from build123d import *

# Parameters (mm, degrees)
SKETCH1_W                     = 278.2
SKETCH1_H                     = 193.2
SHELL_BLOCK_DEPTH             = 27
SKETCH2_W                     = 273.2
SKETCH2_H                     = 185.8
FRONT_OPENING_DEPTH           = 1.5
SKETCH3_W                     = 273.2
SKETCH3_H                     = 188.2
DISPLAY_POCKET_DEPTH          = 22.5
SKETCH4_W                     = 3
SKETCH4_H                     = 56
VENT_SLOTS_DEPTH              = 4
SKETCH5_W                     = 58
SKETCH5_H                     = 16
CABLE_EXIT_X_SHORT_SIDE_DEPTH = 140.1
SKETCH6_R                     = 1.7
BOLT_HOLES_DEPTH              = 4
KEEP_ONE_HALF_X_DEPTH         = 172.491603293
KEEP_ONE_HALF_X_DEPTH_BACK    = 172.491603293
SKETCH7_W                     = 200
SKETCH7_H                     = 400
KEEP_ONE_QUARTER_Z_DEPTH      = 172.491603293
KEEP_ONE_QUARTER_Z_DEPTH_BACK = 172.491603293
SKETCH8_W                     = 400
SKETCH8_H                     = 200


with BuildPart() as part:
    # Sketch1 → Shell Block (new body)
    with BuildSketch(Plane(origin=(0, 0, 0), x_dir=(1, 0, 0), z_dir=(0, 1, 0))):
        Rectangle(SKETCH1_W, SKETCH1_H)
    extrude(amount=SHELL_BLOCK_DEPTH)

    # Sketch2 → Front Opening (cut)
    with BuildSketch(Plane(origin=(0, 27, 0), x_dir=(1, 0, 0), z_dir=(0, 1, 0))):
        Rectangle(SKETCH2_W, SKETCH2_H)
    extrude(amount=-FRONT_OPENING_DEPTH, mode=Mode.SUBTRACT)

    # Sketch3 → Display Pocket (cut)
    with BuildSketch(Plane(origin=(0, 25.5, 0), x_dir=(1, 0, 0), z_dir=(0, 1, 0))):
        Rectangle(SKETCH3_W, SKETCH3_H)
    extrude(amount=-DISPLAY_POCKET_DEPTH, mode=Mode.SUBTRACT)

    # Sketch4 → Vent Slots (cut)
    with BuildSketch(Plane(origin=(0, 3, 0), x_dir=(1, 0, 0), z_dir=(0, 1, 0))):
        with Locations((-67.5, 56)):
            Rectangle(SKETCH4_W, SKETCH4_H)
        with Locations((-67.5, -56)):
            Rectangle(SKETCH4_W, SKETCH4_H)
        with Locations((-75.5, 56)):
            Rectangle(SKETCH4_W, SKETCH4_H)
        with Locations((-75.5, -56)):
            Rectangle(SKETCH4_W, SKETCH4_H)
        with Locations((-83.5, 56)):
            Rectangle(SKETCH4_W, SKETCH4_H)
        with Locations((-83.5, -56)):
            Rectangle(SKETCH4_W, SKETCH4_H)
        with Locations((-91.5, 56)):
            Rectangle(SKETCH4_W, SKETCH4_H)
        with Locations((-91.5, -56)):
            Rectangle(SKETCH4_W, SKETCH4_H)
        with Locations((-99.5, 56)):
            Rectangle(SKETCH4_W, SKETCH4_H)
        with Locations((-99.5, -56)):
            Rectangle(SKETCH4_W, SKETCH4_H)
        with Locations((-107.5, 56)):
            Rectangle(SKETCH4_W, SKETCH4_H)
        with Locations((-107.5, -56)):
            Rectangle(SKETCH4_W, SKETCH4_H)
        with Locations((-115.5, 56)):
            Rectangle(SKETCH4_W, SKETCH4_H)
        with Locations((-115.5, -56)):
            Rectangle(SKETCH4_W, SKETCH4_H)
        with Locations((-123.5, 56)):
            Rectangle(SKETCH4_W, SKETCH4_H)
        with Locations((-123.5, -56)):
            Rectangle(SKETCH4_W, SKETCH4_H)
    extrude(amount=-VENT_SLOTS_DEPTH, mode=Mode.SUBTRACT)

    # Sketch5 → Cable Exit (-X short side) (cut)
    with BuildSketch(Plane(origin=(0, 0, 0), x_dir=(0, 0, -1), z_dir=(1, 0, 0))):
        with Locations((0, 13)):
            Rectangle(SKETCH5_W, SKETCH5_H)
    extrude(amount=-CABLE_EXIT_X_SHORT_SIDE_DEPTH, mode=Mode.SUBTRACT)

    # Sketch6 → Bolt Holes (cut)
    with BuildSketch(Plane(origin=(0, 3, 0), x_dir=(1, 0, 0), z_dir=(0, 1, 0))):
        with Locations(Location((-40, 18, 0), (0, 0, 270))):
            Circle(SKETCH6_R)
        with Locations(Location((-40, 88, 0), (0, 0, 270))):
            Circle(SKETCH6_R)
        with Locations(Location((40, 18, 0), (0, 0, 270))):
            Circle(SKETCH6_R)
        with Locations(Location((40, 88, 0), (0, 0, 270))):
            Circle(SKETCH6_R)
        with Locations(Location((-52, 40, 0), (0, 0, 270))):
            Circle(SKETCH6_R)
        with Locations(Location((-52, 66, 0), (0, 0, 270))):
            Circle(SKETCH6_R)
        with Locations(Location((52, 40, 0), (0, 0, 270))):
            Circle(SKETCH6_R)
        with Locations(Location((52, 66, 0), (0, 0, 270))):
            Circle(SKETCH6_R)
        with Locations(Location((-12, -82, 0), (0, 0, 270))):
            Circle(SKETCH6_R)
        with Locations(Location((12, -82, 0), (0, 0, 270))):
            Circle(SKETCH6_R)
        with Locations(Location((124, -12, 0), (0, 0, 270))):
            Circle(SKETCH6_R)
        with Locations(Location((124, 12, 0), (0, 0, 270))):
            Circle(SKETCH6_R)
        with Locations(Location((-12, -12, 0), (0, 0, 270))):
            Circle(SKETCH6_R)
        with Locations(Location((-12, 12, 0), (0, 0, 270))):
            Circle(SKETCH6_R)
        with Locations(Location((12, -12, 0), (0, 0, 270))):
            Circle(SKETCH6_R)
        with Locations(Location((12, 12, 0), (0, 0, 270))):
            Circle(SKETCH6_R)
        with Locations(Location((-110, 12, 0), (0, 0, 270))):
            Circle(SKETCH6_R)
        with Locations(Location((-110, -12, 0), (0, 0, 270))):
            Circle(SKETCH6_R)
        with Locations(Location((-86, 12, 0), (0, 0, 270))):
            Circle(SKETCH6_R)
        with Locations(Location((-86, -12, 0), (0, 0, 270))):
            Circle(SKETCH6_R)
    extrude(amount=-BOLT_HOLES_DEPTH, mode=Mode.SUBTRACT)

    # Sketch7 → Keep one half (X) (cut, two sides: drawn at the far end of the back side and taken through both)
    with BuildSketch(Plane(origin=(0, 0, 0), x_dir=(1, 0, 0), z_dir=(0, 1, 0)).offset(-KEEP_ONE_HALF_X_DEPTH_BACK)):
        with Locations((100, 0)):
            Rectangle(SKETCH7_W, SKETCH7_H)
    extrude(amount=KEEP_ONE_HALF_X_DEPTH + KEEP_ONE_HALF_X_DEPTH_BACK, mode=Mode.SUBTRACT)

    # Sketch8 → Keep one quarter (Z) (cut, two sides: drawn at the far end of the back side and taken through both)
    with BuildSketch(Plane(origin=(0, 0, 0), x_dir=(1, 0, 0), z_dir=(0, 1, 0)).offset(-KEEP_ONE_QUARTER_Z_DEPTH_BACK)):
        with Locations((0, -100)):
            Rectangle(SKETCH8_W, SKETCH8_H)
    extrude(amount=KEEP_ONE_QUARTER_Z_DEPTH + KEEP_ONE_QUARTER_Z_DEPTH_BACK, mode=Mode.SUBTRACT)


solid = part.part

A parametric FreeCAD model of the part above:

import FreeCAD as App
import Part
import Sketcher
from FreeCAD import Vector
Q = App.Units.Quantity

doc = App.newDocument("Part")
body = doc.addObject("PartDesign::Body", "Body")

sketch1 = body.newObject("Sketcher::SketchObject", "Sketch")
sketch1.AttachmentSupport = (doc.getObject("XZ_Plane"), [""])
sketch1.MapMode = "FlatFace"
sketch1.addGeometry([
    Part.LineSegment(Vector(-139, -97, 0), Vector(-139, 97, 0)),
    Part.LineSegment(Vector(-139, 97, 0), Vector(139, 97, 0)),
    Part.LineSegment(Vector(139, 97, 0), Vector(139, -97, 0)),
    Part.LineSegment(Vector(139, -97, 0), Vector(-139, -97, 0)),
], False)
sketch1.addConstraint([
    Sketcher.Constraint("Coincident", 0, 2, 1, 1),
    Sketcher.Constraint("Coincident", 1, 2, 2, 1),
    Sketcher.Constraint("Coincident", 2, 2, 3, 1),
    Sketcher.Constraint("Coincident", 3, 2, 0, 1),
    Sketcher.Constraint("Vertical", 0),
    Sketcher.Constraint("Horizontal", 1),
    Sketcher.Constraint("Vertical", 2),
    Sketcher.Constraint("Horizontal", 3),
    Sketcher.Constraint("Symmetric", 0, 2, 2, 2, -1, 1),
    Sketcher.Constraint("DistanceX", 1, 1, 1, 2, Q("278.2 mm")),
    Sketcher.Constraint("DistanceY", 0, 1, 0, 2, Q("193.2 mm")),
])
pad1 = body.newObject("PartDesign::Pad", "Pad")
pad1.Profile = sketch1
pad1.Length = 27
pad1.Reversed = True

sketch2 = body.newObject("Sketcher::SketchObject", "Sketch001")
sketch2.AttachmentSupport = (doc.getObject("XZ_Plane"), [""])
sketch2.MapMode = "FlatFace"
sketch2.AttachmentOffset = App.Placement(Vector(0, 0, -27), App.Rotation())
sketch2.addGeometry([
    Part.LineSegment(Vector(-137, -93, 0), Vector(-137, 93, 0)),
    Part.LineSegment(Vector(-137, 93, 0), Vector(137, 93, 0)),
    Part.LineSegment(Vector(137, 93, 0), Vector(137, -93, 0)),
    Part.LineSegment(Vector(137, -93, 0), Vector(-137, -93, 0)),
], False)
sketch2.addConstraint([
    Sketcher.Constraint("Coincident", 0, 2, 1, 1),
    Sketcher.Constraint("Coincident", 1, 2, 2, 1),
    Sketcher.Constraint("Coincident", 2, 2, 3, 1),
    Sketcher.Constraint("Coincident", 3, 2, 0, 1),
    Sketcher.Constraint("Vertical", 0),
    Sketcher.Constraint("Horizontal", 1),
    Sketcher.Constraint("Vertical", 2),
    Sketcher.Constraint("Horizontal", 3),
    Sketcher.Constraint("Symmetric", 0, 2, 2, 2, -1, 1),
    Sketcher.Constraint("DistanceX", 1, 1, 1, 2, Q("273.2 mm")),
    Sketcher.Constraint("DistanceY", 0, 1, 0, 2, Q("185.8 mm")),
])
pocket1 = body.newObject("PartDesign::Pocket", "Pocket")
pocket1.Profile = sketch2
pocket1.Length = 1.5
pocket1.Reversed = True

sketch3 = body.newObject("Sketcher::SketchObject", "Sketch002")
sketch3.AttachmentSupport = (doc.getObject("XZ_Plane"), [""])
sketch3.MapMode = "FlatFace"
sketch3.AttachmentOffset = App.Placement(Vector(0, 0, -25.5), App.Rotation())
sketch3.addGeometry([
    Part.LineSegment(Vector(-137, -94, 0), Vector(-137, 94, 0)),
    Part.LineSegment(Vector(-137, 94, 0), Vector(137, 94, 0)),
    Part.LineSegment(Vector(137, 94, 0), Vector(137, -94, 0)),
    Part.LineSegment(Vector(137, -94, 0), Vector(-137, -94, 0)),
], False)
sketch3.addConstraint([
    Sketcher.Constraint("Coincident", 0, 2, 1, 1),
    Sketcher.Constraint("Coincident", 1, 2, 2, 1),
    Sketcher.Constraint("Coincident", 2, 2, 3, 1),
    Sketcher.Constraint("Coincident", 3, 2, 0, 1),
    Sketcher.Constraint("Vertical", 0),
    Sketcher.Constraint("Horizontal", 1),
    Sketcher.Constraint("Vertical", 2),
    Sketcher.Constraint("Horizontal", 3),
    Sketcher.Constraint("Symmetric", 0, 2, 2, 2, -1, 1),
    Sketcher.Constraint("DistanceX", 1, 1, 1, 2, Q("273.2 mm")),
    Sketcher.Constraint("DistanceY", 0, 1, 0, 2, Q("188.2 mm")),
])
pocket2 = body.newObject("PartDesign::Pocket", "Pocket001")
pocket2.Profile = sketch3
pocket2.Length = 22.5
pocket2.Reversed = True

sketch4 = body.newObject("Sketcher::SketchObject", "Sketch003")
sketch4.AttachmentSupport = (doc.getObject("XZ_Plane"), [""])
sketch4.MapMode = "FlatFace"
sketch4.AttachmentOffset = App.Placement(Vector(0, 0, -3), App.Rotation())
sketch4.addGeometry([
    Part.LineSegment(Vector(-69, -84, 0), Vector(-69, -28, 0)),
    Part.LineSegment(Vector(-69, -28, 0), Vector(-66, -28, 0)),
    Part.LineSegment(Vector(-66, -28, 0), Vector(-66, -84, 0)),
    Part.LineSegment(Vector(-66, -84, 0), Vector(-69, -84, 0)),
    Part.LineSegment(Vector(-69, 28, 0), Vector(-69, 84, 0)),
    Part.LineSegment(Vector(-69, 84, 0), Vector(-66, 84, 0)),
    Part.LineSegment(Vector(-66, 84, 0), Vector(-66, 28, 0)),
    Part.LineSegment(Vector(-66, 28, 0), Vector(-69, 28, 0)),
    Part.LineSegment(Vector(-77, -84, 0), Vector(-77, -28, 0)),
    Part.LineSegment(Vector(-77, -28, 0), Vector(-74, -28, 0)),
    Part.LineSegment(Vector(-74, -28, 0), Vector(-74, -84, 0)),
    Part.LineSegment(Vector(-74, -84, 0), Vector(-77, -84, 0)),
    Part.LineSegment(Vector(-77, 28, 0), Vector(-77, 84, 0)),
    Part.LineSegment(Vector(-77, 84, 0), Vector(-74, 84, 0)),
    Part.LineSegment(Vector(-74, 84, 0), Vector(-74, 28, 0)),
    Part.LineSegment(Vector(-74, 28, 0), Vector(-77, 28, 0)),
    Part.LineSegment(Vector(-85, -84, 0), Vector(-85, -28, 0)),
    Part.LineSegment(Vector(-85, -28, 0), Vector(-82, -28, 0)),
    Part.LineSegment(Vector(-82, -28, 0), Vector(-82, -84, 0)),
    Part.LineSegment(Vector(-82, -84, 0), Vector(-85, -84, 0)),
    Part.LineSegment(Vector(-85, 28, 0), Vector(-85, 84, 0)),
    Part.LineSegment(Vector(-85, 84, 0), Vector(-82, 84, 0)),
    Part.LineSegment(Vector(-82, 84, 0), Vector(-82, 28, 0)),
    Part.LineSegment(Vector(-82, 28, 0), Vector(-85, 28, 0)),
    Part.LineSegment(Vector(-93, -84, 0), Vector(-93, -28, 0)),
    Part.LineSegment(Vector(-93, -28, 0), Vector(-90, -28, 0)),
    Part.LineSegment(Vector(-90, -28, 0), Vector(-90, -84, 0)),
    Part.LineSegment(Vector(-90, -84, 0), Vector(-93, -84, 0)),
    Part.LineSegment(Vector(-93, 28, 0), Vector(-93, 84, 0)),
    Part.LineSegment(Vector(-93, 84, 0), Vector(-90, 84, 0)),
    Part.LineSegment(Vector(-90, 84, 0), Vector(-90, 28, 0)),
    Part.LineSegment(Vector(-90, 28, 0), Vector(-93, 28, 0)),
    Part.LineSegment(Vector(-101, -84, 0), Vector(-101, -28, 0)),
    Part.LineSegment(Vector(-101, -28, 0), Vector(-98, -28, 0)),
    Part.LineSegment(Vector(-98, -28, 0), Vector(-98, -84, 0)),
    Part.LineSegment(Vector(-98, -84, 0), Vector(-101, -84, 0)),
    Part.LineSegment(Vector(-101, 28, 0), Vector(-101, 84, 0)),
    Part.LineSegment(Vector(-101, 84, 0), Vector(-98, 84, 0)),
    Part.LineSegment(Vector(-98, 84, 0), Vector(-98, 28, 0)),
    Part.LineSegment(Vector(-98, 28, 0), Vector(-101, 28, 0)),
    Part.LineSegment(Vector(-109, -84, 0), Vector(-109, -28, 0)),
    Part.LineSegment(Vector(-109, -28, 0), Vector(-106, -28, 0)),
    Part.LineSegment(Vector(-106, -28, 0), Vector(-106, -84, 0)),
    Part.LineSegment(Vector(-106, -84, 0), Vector(-109, -84, 0)),
    Part.LineSegment(Vector(-109, 28, 0), Vector(-109, 84, 0)),
    Part.LineSegment(Vector(-109, 84, 0), Vector(-106, 84, 0)),
    Part.LineSegment(Vector(-106, 84, 0), Vector(-106, 28, 0)),
    Part.LineSegment(Vector(-106, 28, 0), Vector(-109, 28, 0)),
    Part.LineSegment(Vector(-117, -84, 0), Vector(-117, -28, 0)),
    Part.LineSegment(Vector(-117, -28, 0), Vector(-114, -28, 0)),
    Part.LineSegment(Vector(-114, -28, 0), Vector(-114, -84, 0)),
    Part.LineSegment(Vector(-114, -84, 0), Vector(-117, -84, 0)),
    Part.LineSegment(Vector(-117, 28, 0), Vector(-117, 84, 0)),
    Part.LineSegment(Vector(-117, 84, 0), Vector(-114, 84, 0)),
    Part.LineSegment(Vector(-114, 84, 0), Vector(-114, 28, 0)),
    Part.LineSegment(Vector(-114, 28, 0), Vector(-117, 28, 0)),
    Part.LineSegment(Vector(-125, -84, 0), Vector(-125, -28, 0)),
    Part.LineSegment(Vector(-125, -28, 0), Vector(-122, -28, 0)),
    Part.LineSegment(Vector(-122, -28, 0), Vector(-122, -84, 0)),
    Part.LineSegment(Vector(-122, -84, 0), Vector(-125, -84, 0)),
    Part.LineSegment(Vector(-125, 28, 0), Vector(-125, 84, 0)),
    Part.LineSegment(Vector(-125, 84, 0), Vector(-122, 84, 0)),
    Part.LineSegment(Vector(-122, 84, 0), Vector(-122, 28, 0)),
    Part.LineSegment(Vector(-122, 28, 0), Vector(-125, 28, 0)),
], False)
sketch4.addConstraint([
    Sketcher.Constraint("Coincident", 0, 2, 1, 1),
    Sketcher.Constraint("Coincident", 1, 2, 2, 1),
    Sketcher.Constraint("Coincident", 2, 2, 3, 1),
    Sketcher.Constraint("Coincident", 3, 2, 0, 1),
    Sketcher.Constraint("Coincident", 4, 2, 5, 1),
    Sketcher.Constraint("Coincident", 5, 2, 6, 1),
    Sketcher.Constraint("Coincident", 6, 2, 7, 1),
    Sketcher.Constraint("Coincident", 7, 2, 4, 1),
    Sketcher.Constraint("Coincident", 8, 2, 9, 1),
    Sketcher.Constraint("Coincident", 9, 2, 10, 1),
    Sketcher.Constraint("Coincident", 10, 2, 11, 1),
    Sketcher.Constraint("Coincident", 11, 2, 8, 1),
    Sketcher.Constraint("Coincident", 12, 2, 13, 1),
    Sketcher.Constraint("Coincident", 13, 2, 14, 1),
    Sketcher.Constraint("Coincident", 14, 2, 15, 1),
    Sketcher.Constraint("Coincident", 15, 2, 12, 1),
    Sketcher.Constraint("Coincident", 16, 2, 17, 1),
    Sketcher.Constraint("Coincident", 17, 2, 18, 1),
    Sketcher.Constraint("Coincident", 18, 2, 19, 1),
    Sketcher.Constraint("Coincident", 19, 2, 16, 1),
    Sketcher.Constraint("Coincident", 20, 2, 21, 1),
    Sketcher.Constraint("Coincident", 21, 2, 22, 1),
    Sketcher.Constraint("Coincident", 22, 2, 23, 1),
    Sketcher.Constraint("Coincident", 23, 2, 20, 1),
    Sketcher.Constraint("Coincident", 24, 2, 25, 1),
    Sketcher.Constraint("Coincident", 25, 2, 26, 1),
    Sketcher.Constraint("Coincident", 26, 2, 27, 1),
    Sketcher.Constraint("Coincident", 27, 2, 24, 1),
    Sketcher.Constraint("Coincident", 28, 2, 29, 1),
    Sketcher.Constraint("Coincident", 29, 2, 30, 1),
    Sketcher.Constraint("Coincident", 30, 2, 31, 1),
    Sketcher.Constraint("Coincident", 31, 2, 28, 1),
    Sketcher.Constraint("Coincident", 32, 2, 33, 1),
    Sketcher.Constraint("Coincident", 33, 2, 34, 1),
    Sketcher.Constraint("Coincident", 34, 2, 35, 1),
    Sketcher.Constraint("Coincident", 35, 2, 32, 1),
    Sketcher.Constraint("Coincident", 36, 2, 37, 1),
    Sketcher.Constraint("Coincident", 37, 2, 38, 1),
    Sketcher.Constraint("Coincident", 38, 2, 39, 1),
    Sketcher.Constraint("Coincident", 39, 2, 36, 1),
    Sketcher.Constraint("Coincident", 40, 2, 41, 1),
    Sketcher.Constraint("Coincident", 41, 2, 42, 1),
    Sketcher.Constraint("Coincident", 42, 2, 43, 1),
    Sketcher.Constraint("Coincident", 43, 2, 40, 1),
    Sketcher.Constraint("Coincident", 44, 2, 45, 1),
    Sketcher.Constraint("Coincident", 45, 2, 46, 1),
    Sketcher.Constraint("Coincident", 46, 2, 47, 1),
    Sketcher.Constraint("Coincident", 47, 2, 44, 1),
    Sketcher.Constraint("Coincident", 48, 2, 49, 1),
    Sketcher.Constraint("Coincident", 49, 2, 50, 1),
    Sketcher.Constraint("Coincident", 50, 2, 51, 1),
    Sketcher.Constraint("Coincident", 51, 2, 48, 1),
    Sketcher.Constraint("Coincident", 52, 2, 53, 1),
    Sketcher.Constraint("Coincident", 53, 2, 54, 1),
    Sketcher.Constraint("Coincident", 54, 2, 55, 1),
    Sketcher.Constraint("Coincident", 55, 2, 52, 1),
    Sketcher.Constraint("Coincident", 56, 2, 57, 1),
    Sketcher.Constraint("Coincident", 57, 2, 58, 1),
    Sketcher.Constraint("Coincident", 58, 2, 59, 1),
    Sketcher.Constraint("Coincident", 59, 2, 56, 1),
    Sketcher.Constraint("Coincident", 60, 2, 61, 1),
    Sketcher.Constraint("Coincident", 61, 2, 62, 1),
    Sketcher.Constraint("Coincident", 62, 2, 63, 1),
    Sketcher.Constraint("Coincident", 63, 2, 60, 1),
    Sketcher.Constraint("Vertical", 0),
    Sketcher.Constraint("Horizontal", 1),
    Sketcher.Constraint("Vertical", 2),
    Sketcher.Constraint("Horizontal", 3),
    Sketcher.Constraint("Vertical", 4),
    Sketcher.Constraint("Horizontal", 5),
    Sketcher.Constraint("Vertical", 6),
    Sketcher.Constraint("Horizontal", 7),
    Sketcher.Constraint("Vertical", 8),
    Sketcher.Constraint("Horizontal", 9),
    Sketcher.Constraint("Vertical", 10),
    Sketcher.Constraint("Horizontal", 11),
    Sketcher.Constraint("Vertical", 12),
    Sketcher.Constraint("Horizontal", 13),
    Sketcher.Constraint("Vertical", 14),
    Sketcher.Constraint("Horizontal", 15),
    Sketcher.Constraint("Vertical", 16),
    Sketcher.Constraint("Horizontal", 17),
    Sketcher.Constraint("Vertical", 18),
    Sketcher.Constraint("Horizontal", 19),
    Sketcher.Constraint("Vertical", 20),
    Sketcher.Constraint("Horizontal", 21),
    Sketcher.Constraint("Vertical", 22),
    Sketcher.Constraint("Horizontal", 23),
    Sketcher.Constraint("Vertical", 24),
    Sketcher.Constraint("Horizontal", 25),
    Sketcher.Constraint("Vertical", 26),
    Sketcher.Constraint("Horizontal", 27),
    Sketcher.Constraint("Vertical", 28),
    Sketcher.Constraint("Horizontal", 29),
    Sketcher.Constraint("Vertical", 30),
    Sketcher.Constraint("Horizontal", 31),
    Sketcher.Constraint("Vertical", 32),
    Sketcher.Constraint("Horizontal", 33),
    Sketcher.Constraint("Vertical", 34),
    Sketcher.Constraint("Horizontal", 35),
    Sketcher.Constraint("Vertical", 36),
    Sketcher.Constraint("Horizontal", 37),
    Sketcher.Constraint("Vertical", 38),
    Sketcher.Constraint("Horizontal", 39),
    Sketcher.Constraint("Vertical", 40),
    Sketcher.Constraint("Horizontal", 41),
    Sketcher.Constraint("Vertical", 42),
    Sketcher.Constraint("Horizontal", 43),
    Sketcher.Constraint("Vertical", 44),
    Sketcher.Constraint("Horizontal", 45),
    Sketcher.Constraint("Vertical", 46),
    Sketcher.Constraint("Horizontal", 47),
    Sketcher.Constraint("Vertical", 48),
    Sketcher.Constraint("Horizontal", 49),
    Sketcher.Constraint("Vertical", 50),
    Sketcher.Constraint("Horizontal", 51),
    Sketcher.Constraint("Vertical", 52),
    Sketcher.Constraint("Horizontal", 53),
    Sketcher.Constraint("Vertical", 54),
    Sketcher.Constraint("Horizontal", 55),
    Sketcher.Constraint("Vertical", 56),
    Sketcher.Constraint("Horizontal", 57),
    Sketcher.Constraint("Vertical", 58),
    Sketcher.Constraint("Horizontal", 59),
    Sketcher.Constraint("Vertical", 60),
    Sketcher.Constraint("Horizontal", 61),
    Sketcher.Constraint("Vertical", 62),
    Sketcher.Constraint("Horizontal", 63),
    Sketcher.Constraint("Symmetric", 3, 2, 4, 2, -1),
    Sketcher.Constraint("Symmetric", 1, 2, 6, 2, -1),
    Sketcher.Constraint("Symmetric", 11, 2, 12, 2, -1),
    Sketcher.Constraint("Symmetric", 9, 2, 14, 2, -1),
    Sketcher.Constraint("Symmetric", 19, 2, 20, 2, -1),
    Sketcher.Constraint("Symmetric", 17, 2, 22, 2, -1),
    Sketcher.Constraint("Symmetric", 27, 2, 28, 2, -1),
    Sketcher.Constraint("Symmetric", 25, 2, 30, 2, -1),
    Sketcher.Constraint("Symmetric", 35, 2, 36, 2, -1),
    Sketcher.Constraint("Symmetric", 33, 2, 38, 2, -1),
    Sketcher.Constraint("Symmetric", 43, 2, 44, 2, -1),
    Sketcher.Constraint("Symmetric", 41, 2, 46, 2, -1),
    Sketcher.Constraint("Symmetric", 51, 2, 52, 2, -1),
    Sketcher.Constraint("Symmetric", 49, 2, 54, 2, -1),
    Sketcher.Constraint("Symmetric", 59, 2, 60, 2, -1),
    Sketcher.Constraint("Symmetric", 57, 2, 62, 2, -1),
    Sketcher.Constraint("Horizontal", 1, 2, 8, 2),
    Sketcher.Constraint("Horizontal", 3, 2, 10, 2),
    Sketcher.Constraint("Horizontal", 9, 2, 16, 2),
    Sketcher.Constraint("Horizontal", 11, 2, 18, 2),
    Sketcher.Constraint("Horizontal", 17, 2, 24, 2),
    Sketcher.Constraint("Horizontal", 19, 2, 26, 2),
    Sketcher.Constraint("Horizontal", 25, 2, 32, 2),
    Sketcher.Constraint("Horizontal", 27, 2, 34, 2),
    Sketcher.Constraint("Horizontal", 33, 2, 40, 2),
    Sketcher.Constraint("Horizontal", 35, 2, 42, 2),
    Sketcher.Constraint("Horizontal", 41, 2, 48, 2),
    Sketcher.Constraint("Horizontal", 43, 2, 50, 2),
    Sketcher.Constraint("Horizontal", 49, 2, 56, 2),
    Sketcher.Constraint("Horizontal", 51, 2, 58, 2),
    Sketcher.Constraint("Equal", 7, 9),
    Sketcher.Constraint("Equal", 15, 17),
    Sketcher.Constraint("Equal", 23, 25),
    Sketcher.Constraint("Equal", 31, 33),
    Sketcher.Constraint("Equal", 39, 41),
    Sketcher.Constraint("Equal", 47, 49),
    Sketcher.Constraint("Equal", 55, 57),
    Sketcher.Constraint("DistanceX", 1, 1, 1, 2, Q("3 mm")),
    Sketcher.Constraint("DistanceY", 0, 1, 0, 2, Q("56 mm")),
    Sketcher.Constraint("DistanceX", 0, 2, -1, 1, Q("69 mm")),
    Sketcher.Constraint("DistanceY", 0, 2, -1, 1, Q("28 mm")),
    Sketcher.Constraint("DistanceX", 8, 2, -1, 1, Q("77 mm")),
    Sketcher.Constraint("DistanceX", 16, 2, -1, 1, Q("85 mm")),
    Sketcher.Constraint("DistanceX", 24, 2, -1, 1, Q("93 mm")),
    Sketcher.Constraint("DistanceX", 32, 2, -1, 1, Q("101 mm")),
    Sketcher.Constraint("DistanceX", 40, 2, -1, 1, Q("109 mm")),
    Sketcher.Constraint("DistanceX", 48, 2, -1, 1, Q("117 mm")),
    Sketcher.Constraint("DistanceX", 56, 2, -1, 1, Q("125 mm")),
])
pocket3 = body.newObject("PartDesign::Pocket", "Pocket002")
pocket3.Profile = sketch4
pocket3.Length = 4
pocket3.Reversed = True

sketch5 = body.newObject("Sketcher::SketchObject", "Sketch004")
sketch5.AttachmentSupport = (doc.getObject("YZ_Plane"), [""])
sketch5.MapMode = "FlatFace"
sketch5.addGeometry([
    Part.LineSegment(Vector(21, 29, 0), Vector(5, 29, 0)),
    Part.LineSegment(Vector(5, 29, 0), Vector(5, -29, 0)),
    Part.LineSegment(Vector(5, -29, 0), Vector(21, -29, 0)),
    Part.LineSegment(Vector(21, -29, 0), Vector(21, 29, 0)),
], False)
sketch5.addConstraint([
    Sketcher.Constraint("Coincident", 0, 2, 1, 1),
    Sketcher.Constraint("Coincident", 1, 2, 2, 1),
    Sketcher.Constraint("Coincident", 2, 2, 3, 1),
    Sketcher.Constraint("Coincident", 3, 2, 0, 1),
    Sketcher.Constraint("Horizontal", 0),
    Sketcher.Constraint("Vertical", 1),
    Sketcher.Constraint("Horizontal", 2),
    Sketcher.Constraint("Vertical", 3),
    Sketcher.Constraint("DistanceX", 0, 2, 0, 1, Q("16 mm")),
    Sketcher.Constraint("DistanceY", 1, 2, 1, 1, Q("58 mm")),
    Sketcher.Constraint("DistanceX", -1, 1, 0, 2, Q("5 mm")),
    Sketcher.Constraint("DistanceY", -1, 1, 0, 2, Q("29 mm")),
])
pocket4 = body.newObject("PartDesign::Pocket", "Pocket003")
pocket4.Profile = sketch5
pocket4.Length = 140.1

sketch6 = body.newObject("Sketcher::SketchObject", "Sketch005")
sketch6.AttachmentSupport = (doc.getObject("XZ_Plane"), [""])
sketch6.MapMode = "FlatFace"
sketch6.AttachmentOffset = App.Placement(Vector(0, 0, -3), App.Rotation())
sketch6.addGeometry([
    Part.Circle(Vector(-40, -18, 0), Vector(0, 0, 1), 1.7),
    Part.Circle(Vector(-40, -88, 0), Vector(0, 0, 1), 1.7),
    Part.Circle(Vector(40, -18, 0), Vector(0, 0, 1), 1.7),
    Part.Circle(Vector(40, -88, 0), Vector(0, 0, 1), 1.7),
    Part.Circle(Vector(-52, -40, 0), Vector(0, 0, 1), 1.7),
    Part.Circle(Vector(-52, -66, 0), Vector(0, 0, 1), 1.7),
    Part.Circle(Vector(52, -40, 0), Vector(0, 0, 1), 1.7),
    Part.Circle(Vector(52, -66, 0), Vector(0, 0, 1), 1.7),
    Part.Circle(Vector(-12, 82, 0), Vector(0, 0, 1), 1.7),
    Part.Circle(Vector(12, 82, 0), Vector(0, 0, 1), 1.7),
    Part.Circle(Vector(124, 12, 0), Vector(0, 0, 1), 1.7),
    Part.Circle(Vector(124, -12, 0), Vector(0, 0, 1), 1.7),
    Part.Circle(Vector(-12, 12, 0), Vector(0, 0, 1), 1.7),
    Part.Circle(Vector(-12, -12, 0), Vector(0, 0, 1), 1.7),
    Part.Circle(Vector(12, 12, 0), Vector(0, 0, 1), 1.7),
    Part.Circle(Vector(12, -12, 0), Vector(0, 0, 1), 1.7),
    Part.Circle(Vector(-110, -12, 0), Vector(0, 0, 1), 1.7),
    Part.Circle(Vector(-110, 12, 0), Vector(0, 0, 1), 1.7),
    Part.Circle(Vector(-86, -12, 0), Vector(0, 0, 1), 1.7),
    Part.Circle(Vector(-86, 12, 0), Vector(0, 0, 1), 1.7),
], False)
sketch6.addConstraint([
    Sketcher.Constraint("Equal", 0, 1),
    Sketcher.Constraint("Equal", 1, 2),
    Sketcher.Constraint("Equal", 2, 3),
    Sketcher.Constraint("Equal", 3, 4),
    Sketcher.Constraint("Equal", 4, 5),
    Sketcher.Constraint("Equal", 5, 6),
    Sketcher.Constraint("Equal", 6, 7),
    Sketcher.Constraint("Equal", 7, 8),
    Sketcher.Constraint("Equal", 8, 9),
    Sketcher.Constraint("Equal", 9, 10),
    Sketcher.Constraint("Equal", 10, 11),
    Sketcher.Constraint("Equal", 11, 12),
    Sketcher.Constraint("Equal", 12, 13),
    Sketcher.Constraint("Equal", 13, 14),
    Sketcher.Constraint("Equal", 14, 15),
    Sketcher.Constraint("Equal", 15, 16),
    Sketcher.Constraint("Equal", 16, 17),
    Sketcher.Constraint("Equal", 17, 18),
    Sketcher.Constraint("Equal", 18, 19),
    Sketcher.Constraint("Symmetric", 13, 3, 14, 3, -1, 1),
    Sketcher.Constraint("Symmetric", 12, 3, 15, 3, -1, 1),
    Sketcher.Constraint("Symmetric", 0, 3, 2, 3, -2),
    Sketcher.Constraint("Symmetric", 1, 3, 3, 3, -2),
    Sketcher.Constraint("Symmetric", 4, 3, 6, 3, -2),
    Sketcher.Constraint("Symmetric", 5, 3, 7, 3, -2),
    Sketcher.Constraint("Symmetric", 8, 3, 9, 3, -2),
    Sketcher.Constraint("Symmetric", 12, 3, 14, 3, -2),
    Sketcher.Constraint("Symmetric", 10, 3, 11, 3, -1),
    Sketcher.Constraint("Symmetric", 16, 3, 17, 3, -1),
    Sketcher.Constraint("Symmetric", 18, 3, 19, 3, -1),
    Sketcher.Constraint("Horizontal", 10, 3, 12, 3),
    Sketcher.Constraint("Horizontal", 15, 3, 16, 3),
    Sketcher.Constraint("Horizontal", 16, 3, 18, 3),
    Sketcher.Constraint("Vertical", 0, 3, 1, 3),
    Sketcher.Constraint("Vertical", 4, 3, 5, 3),
    Sketcher.Constraint("Vertical", 8, 3, 12, 3),
    Sketcher.Constraint("Diameter", 0, Q("3.4 mm")),
    Sketcher.Constraint("DistanceX", 0, 3, -1, 1, Q("40 mm")),
    Sketcher.Constraint("DistanceY", 0, 3, -1, 1, Q("18 mm")),
    Sketcher.Constraint("DistanceY", 1, 3, -1, 1, Q("88 mm")),
    Sketcher.Constraint("DistanceX", 4, 3, -1, 1, Q("52 mm")),
    Sketcher.Constraint("DistanceY", 4, 3, -1, 1, Q("40 mm")),
    Sketcher.Constraint("DistanceY", 5, 3, -1, 1, Q("66 mm")),
    Sketcher.Constraint("DistanceX", 8, 3, -1, 1, Q("12 mm")),
    Sketcher.Constraint("DistanceY", -1, 1, 8, 3, Q("82 mm")),
    Sketcher.Constraint("DistanceX", -1, 1, 10, 3, Q("124 mm")),
    Sketcher.Constraint("DistanceY", -1, 1, 10, 3, Q("12 mm")),
    Sketcher.Constraint("DistanceX", 16, 3, -1, 1, Q("110 mm")),
    Sketcher.Constraint("DistanceX", 18, 3, -1, 1, Q("86 mm")),
])
pocket5 = body.newObject("PartDesign::Pocket", "Pocket004")
pocket5.Profile = sketch6
pocket5.Length = 4
pocket5.Reversed = True

sketch7 = body.newObject("Sketcher::SketchObject", "Sketch006")
sketch7.AttachmentSupport = (doc.getObject("XZ_Plane"), [""])
sketch7.MapMode = "FlatFace"
sketch7.addGeometry([
    Part.LineSegment(Vector(0, -200, 0), Vector(0, 200, 0)),
    Part.LineSegment(Vector(0, 200, 0), Vector(200, 200, 0)),
    Part.LineSegment(Vector(200, 200, 0), Vector(200, -200, 0)),
    Part.LineSegment(Vector(200, -200, 0), Vector(0, -200, 0)),
], False)
sketch7.addConstraint([
    Sketcher.Constraint("Coincident", 0, 2, 1, 1),
    Sketcher.Constraint("Coincident", 1, 2, 2, 1),
    Sketcher.Constraint("Coincident", 2, 2, 3, 1),
    Sketcher.Constraint("Coincident", 3, 2, 0, 1),
    Sketcher.Constraint("Vertical", 0),
    Sketcher.Constraint("Horizontal", 1),
    Sketcher.Constraint("Vertical", 2),
    Sketcher.Constraint("Horizontal", 3),
    Sketcher.Constraint("Symmetric", 0, 2, 3, 2, -1, 1),
    Sketcher.Constraint("DistanceX", 1, 1, 1, 2, Q("200 mm")),
    Sketcher.Constraint("DistanceY", 0, 1, 0, 2, Q("400 mm")),
])
pocket6 = body.newObject("PartDesign::Pocket", "Pocket005")
pocket6.Profile = sketch7
pocket6.Type = "ThroughAll"
pocket6.Midplane = True

sketch8 = body.newObject("Sketcher::SketchObject", "Sketch007")
sketch8.AttachmentSupport = (doc.getObject("XZ_Plane"), [""])
sketch8.MapMode = "FlatFace"
sketch8.addGeometry([
    Part.LineSegment(Vector(-200, 0, 0), Vector(-200, 200, 0)),
    Part.LineSegment(Vector(-200, 200, 0), Vector(200, 200, 0)),
    Part.LineSegment(Vector(200, 200, 0), Vector(200, 0, 0)),
    Part.LineSegment(Vector(200, 0, 0), Vector(-200, 0, 0)),
], False)
sketch8.addConstraint([
    Sketcher.Constraint("Coincident", 0, 2, 1, 1),
    Sketcher.Constraint("Coincident", 1, 2, 2, 1),
    Sketcher.Constraint("Coincident", 2, 2, 3, 1),
    Sketcher.Constraint("Coincident", 3, 2, 0, 1),
    Sketcher.Constraint("Vertical", 0),
    Sketcher.Constraint("Horizontal", 1),
    Sketcher.Constraint("Vertical", 2),
    Sketcher.Constraint("Horizontal", 3),
    Sketcher.Constraint("Symmetric", 2, 2, 3, 2, -1, 1),
    Sketcher.Constraint("DistanceX", 1, 1, 1, 2, Q("400 mm")),
    Sketcher.Constraint("DistanceY", 0, 1, 0, 2, Q("200 mm")),
])
pocket7 = body.newObject("PartDesign::Pocket", "Pocket006")
pocket7.Profile = sketch8
pocket7.Type = "ThroughAll"
pocket7.Midplane = True

doc.recompute()
